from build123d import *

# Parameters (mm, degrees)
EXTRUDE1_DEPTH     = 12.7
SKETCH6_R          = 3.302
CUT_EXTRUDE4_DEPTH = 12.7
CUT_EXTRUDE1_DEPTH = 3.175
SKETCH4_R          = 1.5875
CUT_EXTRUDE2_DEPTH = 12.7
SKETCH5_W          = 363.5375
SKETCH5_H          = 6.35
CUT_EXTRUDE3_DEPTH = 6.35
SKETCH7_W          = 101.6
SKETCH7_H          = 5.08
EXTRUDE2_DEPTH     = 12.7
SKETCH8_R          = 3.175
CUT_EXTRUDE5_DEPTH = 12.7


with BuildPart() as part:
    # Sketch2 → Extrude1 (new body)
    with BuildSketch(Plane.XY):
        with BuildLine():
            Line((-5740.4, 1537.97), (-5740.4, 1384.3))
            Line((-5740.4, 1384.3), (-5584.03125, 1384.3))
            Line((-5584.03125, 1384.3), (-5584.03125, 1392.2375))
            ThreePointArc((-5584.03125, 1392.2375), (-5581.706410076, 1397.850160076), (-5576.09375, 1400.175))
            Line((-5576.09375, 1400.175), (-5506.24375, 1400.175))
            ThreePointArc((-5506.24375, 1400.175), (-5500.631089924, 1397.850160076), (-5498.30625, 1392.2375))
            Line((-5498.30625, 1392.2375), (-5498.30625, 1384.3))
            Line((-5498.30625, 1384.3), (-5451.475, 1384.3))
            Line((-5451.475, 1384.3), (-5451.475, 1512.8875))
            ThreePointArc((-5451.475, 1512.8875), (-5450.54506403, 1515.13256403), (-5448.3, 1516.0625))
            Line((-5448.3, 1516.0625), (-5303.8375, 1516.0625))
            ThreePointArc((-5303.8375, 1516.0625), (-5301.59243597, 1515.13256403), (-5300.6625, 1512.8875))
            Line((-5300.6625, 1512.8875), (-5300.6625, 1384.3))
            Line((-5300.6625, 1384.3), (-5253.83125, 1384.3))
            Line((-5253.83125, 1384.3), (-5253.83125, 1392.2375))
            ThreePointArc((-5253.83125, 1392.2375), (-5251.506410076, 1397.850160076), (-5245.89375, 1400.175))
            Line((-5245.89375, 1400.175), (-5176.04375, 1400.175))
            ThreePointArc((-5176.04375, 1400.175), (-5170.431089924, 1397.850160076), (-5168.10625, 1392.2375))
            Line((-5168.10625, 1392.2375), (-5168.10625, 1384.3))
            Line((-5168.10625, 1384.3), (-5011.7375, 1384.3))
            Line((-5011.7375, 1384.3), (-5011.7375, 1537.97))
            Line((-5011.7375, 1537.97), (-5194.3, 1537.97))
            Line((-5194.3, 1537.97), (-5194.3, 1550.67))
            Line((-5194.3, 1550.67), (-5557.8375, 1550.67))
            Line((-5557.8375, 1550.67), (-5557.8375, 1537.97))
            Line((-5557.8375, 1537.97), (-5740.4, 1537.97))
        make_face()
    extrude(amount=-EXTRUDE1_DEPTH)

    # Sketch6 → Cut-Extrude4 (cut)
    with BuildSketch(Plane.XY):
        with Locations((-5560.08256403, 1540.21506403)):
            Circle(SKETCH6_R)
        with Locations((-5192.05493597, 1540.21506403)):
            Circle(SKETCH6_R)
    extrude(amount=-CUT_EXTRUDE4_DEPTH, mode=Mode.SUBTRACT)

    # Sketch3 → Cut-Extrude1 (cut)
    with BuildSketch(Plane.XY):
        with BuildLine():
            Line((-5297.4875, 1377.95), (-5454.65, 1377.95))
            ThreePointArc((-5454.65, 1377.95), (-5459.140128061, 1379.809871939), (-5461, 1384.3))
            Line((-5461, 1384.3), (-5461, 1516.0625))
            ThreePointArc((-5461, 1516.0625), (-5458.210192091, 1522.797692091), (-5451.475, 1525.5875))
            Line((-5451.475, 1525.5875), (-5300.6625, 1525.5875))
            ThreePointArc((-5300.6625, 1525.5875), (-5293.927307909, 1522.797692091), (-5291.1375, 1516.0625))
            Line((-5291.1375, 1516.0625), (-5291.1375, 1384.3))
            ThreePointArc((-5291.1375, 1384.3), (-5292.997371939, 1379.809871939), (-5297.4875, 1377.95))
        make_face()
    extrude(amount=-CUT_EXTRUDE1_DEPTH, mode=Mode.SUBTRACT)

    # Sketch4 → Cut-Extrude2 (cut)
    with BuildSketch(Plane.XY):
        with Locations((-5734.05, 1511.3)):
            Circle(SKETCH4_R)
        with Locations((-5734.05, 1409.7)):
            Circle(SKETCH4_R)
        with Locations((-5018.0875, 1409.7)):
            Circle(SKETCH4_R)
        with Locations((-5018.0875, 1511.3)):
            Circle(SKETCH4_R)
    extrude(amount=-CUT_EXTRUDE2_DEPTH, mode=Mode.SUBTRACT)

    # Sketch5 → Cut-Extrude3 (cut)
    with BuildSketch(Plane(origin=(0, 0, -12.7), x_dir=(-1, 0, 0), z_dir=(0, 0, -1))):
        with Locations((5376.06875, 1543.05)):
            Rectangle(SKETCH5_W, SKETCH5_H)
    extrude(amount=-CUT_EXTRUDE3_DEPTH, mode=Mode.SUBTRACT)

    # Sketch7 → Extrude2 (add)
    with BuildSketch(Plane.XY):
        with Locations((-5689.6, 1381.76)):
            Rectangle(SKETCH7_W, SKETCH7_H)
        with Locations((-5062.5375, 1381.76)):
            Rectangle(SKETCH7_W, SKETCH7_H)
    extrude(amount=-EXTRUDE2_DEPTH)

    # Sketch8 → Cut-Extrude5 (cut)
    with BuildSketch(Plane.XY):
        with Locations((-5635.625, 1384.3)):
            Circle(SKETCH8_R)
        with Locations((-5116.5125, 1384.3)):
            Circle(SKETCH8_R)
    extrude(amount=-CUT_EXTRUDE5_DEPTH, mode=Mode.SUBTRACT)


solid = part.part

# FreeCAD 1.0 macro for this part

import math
import FreeCAD as App
import Part
import Sketcher
from FreeCAD import Vector
Q = App.Units.Quantity


def add_polygon(sketch, points):
    """Adds a closed chain of lines whose ends are joined by coincident constraints."""
    first, n = sketch.GeometryCount, len(points)
    for a, b in zip(points, points[1:] + points[:1]):
        sketch.addGeometry(Part.LineSegment(App.Vector(*a, 0), App.Vector(*b, 0)), False)
    for i in range(n):
        sketch.addConstraint(Sketcher.Constraint("Coincident", first + i, 2, first + (i + 1) % n, 1))

doc = App.newDocument("Part")
body = doc.addObject("PartDesign::Body", "Body")

sketch1 = body.newObject("Sketcher::SketchObject", "Sketch")
sketch1.AttachmentSupport = (doc.getObject("XY_Plane"), [""])
sketch1.MapMode = "FlatFace"
sketch1.addGeometry(Part.LineSegment(Vector(-5740.4, 1538, 0), Vector(-5740.4, 1384.3, 0)), False)
sketch1.addGeometry(Part.LineSegment(Vector(-5740.4, 1384.3, 0), Vector(-5584, 1384.3, 0)), False)
sketch1.addGeometry(Part.LineSegment(Vector(-5584, 1384.3, 0), Vector(-5584, 1392.2, 0)), False)
sketch1.addGeometry(Part.ArcOfCircle(Part.Circle(Vector(-5576.1, 1392.2, 0), Vector(0, 0, 1), 7.9), math.radians(90), math.radians(180)), False)
sketch1.addGeometry(Part.LineSegment(Vector(-5576.1, 1400.2, 0), Vector(-5506.2, 1400.2, 0)), False)
sketch1.addGeometry(Part.ArcOfCircle(Part.Circle(Vector(-5506.2, 1392.2, 0), Vector(0, 0, 1), 7.9), math.radians(0), math.radians(90)), False)
sketch1.addGeometry(Part.LineSegment(Vector(-5498.3, 1392.2, 0), Vector(-5498.3, 1384.3, 0)), False)
sketch1.addGeometry(Part.LineSegment(Vector(-5498.3, 1384.3, 0), Vector(-5451.5, 1384.3, 0)), False)
sketch1.addGeometry(Part.LineSegment(Vector(-5451.5, 1384.3, 0), Vector(-5451.5, 1512.9, 0)), False)
sketch1.addGeometry(Part.ArcOfCircle(Part.Circle(Vector(-5448.3, 1512.9, 0), Vector(0, 0, 1), 3.2), math.radians(90), math.radians(180)), False)
sketch1.addGeometry(Part.LineSegment(Vector(-5448.3, 1516.1, 0), Vector(-5303.8, 1516.1, 0)), False)
sketch1.addGeometry(Part.ArcOfCircle(Part.Circle(Vector(-5303.8, 1512.9, 0), Vector(0, 0, 1), 3.2), math.radians(0), math.radians(90)), False)
sketch1.addGeometry(Part.LineSegment(Vector(-5300.7, 1512.9, 0), Vector(-5300.7, 1384.3, 0)), False)
sketch1.addGeometry(Part.LineSegment(Vector(-5300.7, 1384.3, 0), Vector(-5253.8, 1384.3, 0)), False)
sketch1.addGeometry(Part.LineSegment(Vector(-5253.8, 1384.3, 0), Vector(-5253.8, 1392.2, 0)), False)
sketch1.addGeometry(Part.ArcOfCircle(Part.Circle(Vector(-5245.9, 1392.2, 0), Vector(0, 0, 1), 7.9), math.radians(90), math.radians(180)), False)
sketch1.addGeometry(Part.LineSegment(Vector(-5245.9, 1400.2, 0), Vector(-5176, 1400.2, 0)), False)
sketch1.addGeometry(Part.ArcOfCircle(Part.Circle(Vector(-5176, 1392.2, 0), Vector(0, 0, 1), 7.9), math.radians(0), math.radians(90)), False)
sketch1.addGeometry(Part.LineSegment(Vector(-5168.1, 1392.2, 0), Vector(-5168.1, 1384.3, 0)), False)
sketch1.addGeometry(Part.LineSegment(Vector(-5168.1, 1384.3, 0), Vector(-5011.7, 1384.3, 0)), False)
sketch1.addGeometry(Part.LineSegment(Vector(-5011.7, 1384.3, 0), Vector(-5011.7, 1538, 0)), False)
sketch1.addGeometry(Part.LineSegment(Vector(-5011.7, 1538, 0), Vector(-5194.3, 1538, 0)), False)
sketch1.addGeometry(Part.LineSegment(Vector(-5194.3, 1538, 0), Vector(-5194.3, 1550.7, 0)), False)
sketch1.addGeometry(Part.LineSegment(Vector(-5194.3, 1550.7, 0), Vector(-5557.8, 1550.7, 0)), False)
sketch1.addGeometry(Part.LineSegment(Vector(-5557.8, 1550.7, 0), Vector(-5557.8, 1538, 0)), False)
sketch1.addGeometry(Part.LineSegment(Vector(-5557.8, 1538, 0), Vector(-5740.4, 1538, 0)), False)
sketch1.addConstraint(Sketcher.Constraint("Coincident", 0, 2, 1, 1))
sketch1.addConstraint(Sketcher.Constraint("Coincident", 1, 2, 2, 1))
sketch1.addConstraint(Sketcher.Constraint("Tangent", 2, 2, 3, 2))
sketch1.addConstraint(Sketcher.Constraint("Tangent", 3, 1, 4, 1))
sketch1.addConstraint(Sketcher.Constraint("Tangent", 4, 2, 5, 2))
sketch1.addConstraint(Sketcher.Constraint("Tangent", 5, 1, 6, 1))
sketch1.addConstraint(Sketcher.Constraint("Coincident", 6, 2, 7, 1))
sketch1.addConstraint(Sketcher.Constraint("Coincident", 7, 2, 8, 1))
sketch1.addConstraint(Sketcher.Constraint("Tangent", 8, 2, 9, 2))
sketch1.addConstraint(Sketcher.Constraint("Tangent", 9, 1, 10, 1))
sketch1.addConstraint(Sketcher.Constraint("Tangent", 10, 2, 11, 2))
sketch1.addConstraint(Sketcher.Constraint("Tangent", 11, 1, 12, 1))
sketch1.addConstraint(Sketcher.Constraint("Coincident", 12, 2, 13, 1))
sketch1.addConstraint(Sketcher.Constraint("Coincident", 13, 2, 14, 1))
sketch1.addConstraint(Sketcher.Constraint("Tangent", 14, 2, 15, 2))
sketch1.addConstraint(Sketcher.Constraint("Tangent", 15, 1, 16, 1))
sketch1.addConstraint(Sketcher.Constraint("Tangent", 16, 2, 17, 2))
sketch1.addConstraint(Sketcher.Constraint("Tangent", 17, 1, 18, 1))
sketch1.addConstraint(Sketcher.Constraint("Coincident", 18, 2, 19, 1))
sketch1.addConstraint(Sketcher.Constraint("Coincident", 19, 2, 20, 1))
sketch1.addConstraint(Sketcher.Constraint("Coincident", 20, 2, 21, 1))
sketch1.addConstraint(Sketcher.Constraint("Coincident", 21, 2, 22, 1))
sketch1.addConstraint(Sketcher.Constraint("Coincident", 22, 2, 23, 1))
sketch1.addConstraint(Sketcher.Constraint("Coincident", 23, 2, 24, 1))
sketch1.addConstraint(Sketcher.Constraint("Coincident", 24, 2, 25, 1))
sketch1.addConstraint(Sketcher.Constraint("Coincident", 25, 2, 0, 1))
sketch1.addConstraint(Sketcher.Constraint("Vertical", 0))
sketch1.addConstraint(Sketcher.Constraint("Horizontal", 1))
sketch1.addConstraint(Sketcher.Constraint("Vertical", 2))
sketch1.addConstraint(Sketcher.Constraint("Horizontal", 4))
sketch1.addConstraint(Sketcher.Constraint("Vertical", 6))
sketch1.addConstraint(Sketcher.Constraint("Horizontal", 7))
sketch1.addConstraint(Sketcher.Constraint("Vertical", 8))
sketch1.addConstraint(Sketcher.Constraint("Horizontal", 10))
sketch1.addConstraint(Sketcher.Constraint("Vertical", 12))
sketch1.addConstraint(Sketcher.Constraint("Horizontal", 13))
sketch1.addConstraint(Sketcher.Constraint("Vertical", 14))
sketch1.addConstraint(Sketcher.Constraint("Horizontal", 16))
sketch1.addConstraint(Sketcher.Constraint("Vertical", 18))
sketch1.addConstraint(Sketcher.Constraint("Horizontal", 19))
sketch1.addConstraint(Sketcher.Constraint("Vertical", 20))
sketch1.addConstraint(Sketcher.Constraint("Horizontal", 21))
sketch1.addConstraint(Sketcher.Constraint("Vertical", 22))
sketch1.addConstraint(Sketcher.Constraint("Horizontal", 23))
sketch1.addConstraint(Sketcher.Constraint("Vertical", 24))
sketch1.addConstraint(Sketcher.Constraint("Horizontal", 25))
sketch1.addConstraint(Sketcher.Constraint("Equal", 3, 5))
sketch1.addConstraint(Sketcher.Constraint("Equal", 9, 11))
sketch1.addConstraint(Sketcher.Constraint("Equal", 5, 15))
sketch1.addConstraint(Sketcher.Constraint("Equal", 15, 17))
sketch1.addConstraint(Sketcher.Constraint("Horizontal", 5, 3, 15, 3))
sketch1.addConstraint(Sketcher.Constraint("Horizontal", 1, 2, 6, 2))
sketch1.addConstraint(Sketcher.Constraint("Horizontal", 7, 2, 12, 2))
sketch1.addConstraint(Sketcher.Constraint("Horizontal", 13, 2, 18, 2))
sketch1.addConstraint(Sketcher.Constraint("Horizontal", 21, 2, 24, 2))
sketch1.addConstraint(Sketcher.Constraint("Equal", 7, 13))
sketch1.addConstraint(Sketcher.Constraint("Equal", 4, 16))
sketch1.addConstraint(Sketcher.Constraint("Equal", 1, 19))
sketch1.addConstraint(Sketcher.Constraint("Equal", 21, 25))
sketch1.addConstraint(Sketcher.Constraint("DistanceY", 22, 1, 22, 2, Q("0.5 in")))
sketch1.addConstraint(Sketcher.Constraint("DistanceX", 0, 2, -1, 1, Q("226 in")))
sketch1.addConstraint(Sketcher.Constraint("Radius", 3, Q("0.3125 in")))
sketch1.addConstraint(Sketcher.Constraint("Radius", 9, Q("0.125 in")))
sketch1.addConstraint(Sketcher.Constraint("DistanceX", 3, 3, 15, 3, Q("13 in")))
sketch1.addConstraint(Sketcher.Constraint("DistanceX", 4, 1, 4, 2, Q("2.75 in")))
sketch1.addConstraint(Sketcher.Constraint("DistanceY", 0, 2, 0, 1, Q("6.05 in")))
sketch1.addConstraint(Sketcher.Constraint("DistanceX", 9, 3, -1, 1, Q("214.5 in")))
sketch1.addConstraint(Sketcher.Constraint("DistanceY", -1, 1, 0, 2, Q("54.5 in")))
sketch1.addConstraint(Sketcher.Constraint("DistanceX", 21, 2, -1, 1, Q("204.5 in")))
sketch1.addConstraint(Sketcher.Constraint("DistanceX", 1, 1, 1, 2, Q("6.15625 in")))
sketch1.addConstraint(Sketcher.Constraint("DistanceY", 2, 1, 2, 2, Q("0.3125 in")))
sketch1.addConstraint(Sketcher.Constraint("DistanceY", 8, 1, 8, 2, Q("5.0625 in")))
pad1 = body.newObject("PartDesign::Pad", "Pad")
pad1.Profile = sketch1
pad1.Length = Q("0.5 in")
pad1.Reversed = True

sketch2 = body.newObject("Sketcher::SketchObject", "Sketch001")
sketch2.AttachmentSupport = (doc.getObject("XY_Plane"), [""])
sketch2.MapMode = "FlatFace"
sketch2.addGeometry(Part.Circle(Vector(-5560.1, 1540.2, 0), Vector(0, 0, 1), 3.3), False)
sketch2.addGeometry(Part.Circle(Vector(-5192.1, 1540.2, 0), Vector(0, 0, 1), 3.3), False)
sketch2.addConstraint(Sketcher.Constraint("Equal", 0, 1))
sketch2.addConstraint(Sketcher.Constraint("Horizontal", 0, 3, 1, 3))
sketch2.addConstraint(Sketcher.Constraint("Diameter", 0, Q("0.26 in")))
sketch2.addConstraint(Sketcher.Constraint("DistanceX", 0, 3, 1, 3, Q("368.027628 mm")))
sketch2.addConstraint(Sketcher.Constraint("DistanceX", 0, 3, -1, 1, Q("5560.082564 mm")))
sketch2.addConstraint(Sketcher.Constraint("DistanceY", -1, 1, 0, 3, Q("1540.215064 mm")))
pocket1 = body.newObject("PartDesign::Pocket", "Pocket")
pocket1.Profile = sketch2
pocket1.Length = Q("0.5 in")

sketch3 = body.newObject("Sketcher::SketchObject", "Sketch002")
sketch3.AttachmentSupport = (doc.getObject("XY_Plane"), [""])
sketch3.MapMode = "FlatFace"
sketch3.addGeometry(Part.LineSegment(Vector(-5455, 1378, 0), Vector(-5297, 1378, 0)), False)
sketch3.addGeometry(Part.ArcOfCircle(Part.Circle(Vector(-5297, 1384, 0), Vector(0, 0, 1), 6), math.radians(-90), math.radians(0)), False)
sketch3.addGeometry(Part.LineSegment(Vector(-5291, 1384, 0), Vector(-5291, 1516, 0)), False)
sketch3.addGeometry(Part.ArcOfCircle(Part.Circle(Vector(-5301, 1516, 0), Vector(0, 0, 1), 10), math.radians(0), math.radians(90)), False)
sketch3.addGeometry(Part.LineSegment(Vector(-5301, 1526, 0), Vector(-5451, 1526, 0)), False)
sketch3.addGeometry(Part.ArcOfCircle(Part.Circle(Vector(-5451, 1516, 0), Vector(0, 0, 1), 10), math.radians(90), math.radians(180)), False)
sketch3.addGeometry(Part.LineSegment(Vector(-5461, 1516, 0), Vector(-5461, 1384, 0)), False)
sketch3.addGeometry(Part.ArcOfCircle(Part.Circle(Vector(-5455, 1384, 0), Vector(0, 0, 1), 6), math.radians(180), math.radians(270)), False)
sketch3.addConstraint(Sketcher.Constraint("Tangent", 0, 2, 1, 1))
sketch3.addConstraint(Sketcher.Constraint("Tangent", 1, 2, 2, 1))
sketch3.addConstraint(Sketcher.Constraint("Tangent", 2, 2, 3, 1))
sketch3.addConstraint(Sketcher.Constraint("Tangent", 3, 2, 4, 1))
sketch3.addConstraint(Sketcher.Constraint("Tangent", 4, 2, 5, 1))
sketch3.addConstraint(Sketcher.Constraint("Tangent", 5, 2, 6, 1))
sketch3.addConstraint(Sketcher.Constraint("Tangent", 6, 2, 7, 1))
sketch3.addConstraint(Sketcher.Constraint("Tangent", 7, 2, 0, 1))
sketch3.addConstraint(Sketcher.Constraint("Horizontal", 0))
sketch3.addConstraint(Sketcher.Constraint("Vertical", 2))
sketch3.addConstraint(Sketcher.Constraint("Horizontal", 4))
sketch3.addConstraint(Sketcher.Constraint("Vertical", 6))
sketch3.addConstraint(Sketcher.Constraint("Equal", 3, 5))
sketch3.addConstraint(Sketcher.Constraint("Equal", 1, 7))
sketch3.addConstraint(Sketcher.Constraint("Radius", 1, Q("0.25 in")))
sketch3.addConstraint(Sketcher.Constraint("DistanceX", 5, 2, -1, 1, Q("215 in")))
sketch3.addConstraint(Sketcher.Constraint("Radius", 3, Q("0.375 in")))
sketch3.addConstraint(Sketcher.Constraint("DistanceY", -1, 1, 1, 3, Q("54.5 in")))
sketch3.addConstraint(Sketcher.Constraint("DistanceX", 0, 1, 0, 2, Q("6.1875 in")))
sketch3.addConstraint(Sketcher.Constraint("DistanceY", 2, 1, 2, 2, Q("5.1875 in")))
pocket2 = body.newObject("PartDesign::Pocket", "Pocket001")
pocket2.Profile = sketch3
pocket2.Length = Q("0.125 in")

sketch4 = body.newObject("Sketcher::SketchObject", "Sketch003")
sketch4.AttachmentSupport = (doc.getObject("XY_Plane"), [""])
sketch4.MapMode = "FlatFace"
sketch4.addGeometry(Part.Circle(Vector(-5734.1, 1511.3, 0), Vector(0, 0, 1), 1.6), False)
sketch4.addGeometry(Part.Circle(Vector(-5734.1, 1409.7, 0), Vector(0, 0, 1), 1.6), False)
sketch4.addGeometry(Part.Circle(Vector(-5018.1, 1409.7, 0), Vector(0, 0, 1), 1.6), False)
sketch4.addGeometry(Part.Circle(Vector(-5018.1, 1511.3, 0), Vector(0, 0, 1), 1.6), False)
sketch4.addConstraint(Sketcher.Constraint("Equal", 0, 1))
sketch4.addConstraint(Sketcher.Constraint("Equal", 1, 2))
sketch4.addConstraint(Sketcher.Constraint("Equal", 2, 3))
sketch4.addConstraint(Sketcher.Constraint("Horizontal", 1, 3, 2, 3))
sketch4.addConstraint(Sketcher.Constraint("Horizontal", 0, 3, 3, 3))
sketch4.addConstraint(Sketcher.Constraint("Vertical", 0, 3, 1, 3))
sketch4.addConstraint(Sketcher.Constraint("Vertical", 2, 3, 3, 3))
sketch4.addConstraint(Sketcher.Constraint("Diameter", 0, Q("0.125 in")))
sketch4.addConstraint(Sketcher.Constraint("DistanceY", 1, 3, 0, 3, Q("4 in")))
sketch4.addConstraint(Sketcher.Constraint("DistanceY", -1, 1, 0, 3, Q("59.5 in")))
sketch4.addConstraint(Sketcher.Constraint("DistanceX", 0, 3, -1, 1, Q("225.75 in")))
sketch4.addConstraint(Sketcher.Constraint("DistanceX", 2, 3, -1, 1, Q("197.5625 in")))
pocket3 = body.newObject("PartDesign::Pocket", "Pocket002")
pocket3.Profile = sketch4
pocket3.Length = Q("0.5 in")

sketch5 = body.newObject("Sketcher::SketchObject", "Sketch004")
sketch5.AttachmentSupport = (doc.getObject("XY_Plane"), [""])
sketch5.MapMode = "FlatFace"
sketch5.AttachmentOffset = App.Placement(Vector(0, 0, -0.5 * 25.4), App.Rotation())
add_polygon(sketch5, [(-5194, 1546), (-5194, 1540), (-5558, 1540), (-5558, 1546)])
sketch5.addConstraint(Sketcher.Constraint("Vertical", 0))
sketch5.addConstraint(Sketcher.Constraint("Horizontal", 1))
sketch5.addConstraint(Sketcher.Constraint("Vertical", 2))
sketch5.addConstraint(Sketcher.Constraint("Horizontal", 3))
sketch5.addConstraint(Sketcher.Constraint("DistanceY", 0, 2, 0, 1, Q("0.25 in")))
sketch5.addConstraint(Sketcher.Constraint("DistanceX", 0, 2, -1, 1, Q("204.5 in")))
sketch5.addConstraint(Sketcher.Constraint("DistanceX", 1, 2, 1, 1, Q("14.3125 in")))
sketch5.addConstraint(Sketcher.Constraint("DistanceY", -1, 1, 0, 2, Q("60.625 in")))
pocket4 = body.newObject("PartDesign::Pocket", "Pocket003")
pocket4.Profile = sketch5
pocket4.Length = Q("0.25 in")
pocket4.Reversed = True

sketch6 = body.newObject("Sketcher::SketchObject", "Sketch005")
sketch6.AttachmentSupport = (doc.getObject("XY_Plane"), [""])
sketch6.MapMode = "FlatFace"
add_polygon(sketch6, [(-5740, 1384), (-5740, 1379), (-5639, 1379), (-5639, 1384)])
add_polygon(sketch6, [(-5113, 1384), (-5113, 1379), (-5012, 1379), (-5012, 1384)])
sketch6.addConstraint(Sketcher.Constraint("Vertical", 0))
sketch6.addConstraint(Sketcher.Constraint("Horizontal", 1))
sketch6.addConstraint(Sketcher.Constraint("Vertical", 2))
sketch6.addConstraint(Sketcher.Constraint("Horizontal", 3))
sketch6.addConstraint(Sketcher.Constraint("Vertical", 4))
sketch6.addConstraint(Sketcher.Constraint("Horizontal", 5))
sketch6.addConstraint(Sketcher.Constraint("Vertical", 6))
sketch6.addConstraint(Sketcher.Constraint("Horizontal", 7))
sketch6.addConstraint(Sketcher.Constraint("Horizontal", 1, 2, 4, 2))
sketch6.addConstraint(Sketcher.Constraint("Horizontal", 3, 2, 6, 2))
sketch6.addConstraint(Sketcher.Constraint("Equal", 3, 5))
sketch6.addConstraint(Sketcher.Constraint("DistanceX", 1, 1, 1, 2, Q("4 in")))
sketch6.addConstraint(Sketcher.Constraint("DistanceY", 0, 2, 0, 1, Q("0.2 in")))
sketch6.addConstraint(Sketcher.Constraint("DistanceX", 0, 2, -1, 1, Q("226 in")))
sketch6.addConstraint(Sketcher.Constraint("DistanceY", -1, 1, 0, 2, Q("54.3 in")))
sketch6.addConstraint(Sketcher.Constraint("DistanceX", 4, 2, -1, 1, Q("201.3125 in")))
pad2 = body.newObject("PartDesign::Pad", "Pad001")
pad2.Profile = sketch6
pad2.Length = Q("0.5 in")
pad2.Reversed = True

sketch7 = body.newObject("Sketcher::SketchObject", "Sketch006")
sketch7.AttachmentSupport = (doc.getObject("XY_Plane"), [""])
sketch7.MapMode = "FlatFace"
sketch7.addGeometry(Part.Circle(Vector(-5635.6, 1384.3, 0), Vector(0, 0, 1), 3.2), False)
sketch7.addGeometry(Part.Circle(Vector(-5116.5, 1384.3, 0), Vector(0, 0, 1), 3.2), False)
sketch7.addConstraint(Sketcher.Constraint("Equal", 0, 1))
sketch7.addConstraint(Sketcher.Constraint("Horizontal", 0, 3, 1, 3))
sketch7.addConstraint(Sketcher.Constraint("Diameter", 0, Q("0.25 in")))
sketch7.addConstraint(Sketcher.Constraint("DistanceY", -1, 1, 0, 3, Q("54.5 in")))
sketch7.addConstraint(Sketcher.Constraint("DistanceX", 0, 3, -1, 1, Q("221.875 in")))
sketch7.addConstraint(Sketcher.Constraint("DistanceX", 1, 3, -1, 1, Q("201.4375 in")))
pocket5 = body.newObject("PartDesign::Pocket", "Pocket004")
pocket5.Profile = sketch7
pocket5.Length = Q("0.5 in")

doc.recompute()
